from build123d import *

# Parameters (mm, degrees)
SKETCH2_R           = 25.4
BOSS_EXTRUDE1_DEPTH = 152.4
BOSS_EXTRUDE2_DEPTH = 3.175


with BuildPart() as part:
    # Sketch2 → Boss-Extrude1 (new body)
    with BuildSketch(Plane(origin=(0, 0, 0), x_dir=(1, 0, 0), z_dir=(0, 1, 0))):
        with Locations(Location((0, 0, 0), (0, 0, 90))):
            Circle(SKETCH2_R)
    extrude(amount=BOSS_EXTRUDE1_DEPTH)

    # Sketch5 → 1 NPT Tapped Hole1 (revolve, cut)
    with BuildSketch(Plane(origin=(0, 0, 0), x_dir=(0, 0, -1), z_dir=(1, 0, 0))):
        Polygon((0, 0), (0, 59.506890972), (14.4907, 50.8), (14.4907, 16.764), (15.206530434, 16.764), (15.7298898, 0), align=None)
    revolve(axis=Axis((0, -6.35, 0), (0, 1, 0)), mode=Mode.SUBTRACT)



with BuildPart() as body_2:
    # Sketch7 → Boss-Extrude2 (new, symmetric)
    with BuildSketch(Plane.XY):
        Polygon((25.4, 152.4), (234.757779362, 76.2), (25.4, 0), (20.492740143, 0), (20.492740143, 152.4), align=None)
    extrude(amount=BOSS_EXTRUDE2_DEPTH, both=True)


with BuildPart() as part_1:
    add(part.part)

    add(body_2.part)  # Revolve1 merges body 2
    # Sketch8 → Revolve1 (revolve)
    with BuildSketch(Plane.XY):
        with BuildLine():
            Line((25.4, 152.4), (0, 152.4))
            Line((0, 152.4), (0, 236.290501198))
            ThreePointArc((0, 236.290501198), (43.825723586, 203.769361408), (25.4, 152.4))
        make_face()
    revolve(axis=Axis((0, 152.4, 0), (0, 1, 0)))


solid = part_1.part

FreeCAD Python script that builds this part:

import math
import FreeCAD as App
import Part
import Sketcher
Q = App.Units.Quantity

doc = App.newDocument("Part")
body = doc.addObject("PartDesign::Body", "Body")

# Sketch on XZ plane
sketch1 = doc.addObject("Sketcher::SketchObject", "Sketch")
body.addObject(sketch1)
sketch1.AttachmentSupport = (doc.XZ_Plane, [""])
sketch1.MapMode = "FlatFace"
sketch1.addGeometry(Part.Circle(App.Vector(0, 0, 0), App.Vector(0, 0, 1), 25), False)
sketch1.addConstraint([
    Sketcher.Constraint("Coincident", 0, 3, -1, 1),
    Sketcher.Constraint("Diameter", 0, Q("2 in")),
])
pad1 = doc.addObject("PartDesign::Pad", "Pad")
body.addObject(pad1)
pad1.Profile = sketch1
pad1.Length = Q("6 in")
pad1.Reversed = True

# Sketch on YZ plane
sketch2 = doc.addObject("Sketcher::SketchObject", "Sketch001")
body.addObject(sketch2)
sketch2.AttachmentSupport = (doc.YZ_Plane, [""])
sketch2.MapMode = "FlatFace"
sketch2.addGeometry([
    Part.LineSegment(App.Vector(59.5, 0, 0), App.Vector(0, 0, 0)),  # 0
    Part.LineSegment(App.Vector(0, 0, 0), App.Vector(0, -15.7, 0)),  # 1
    Part.LineSegment(App.Vector(0, -15.7, 0), App.Vector(16.8, -15.2, 0)),  # 2
    Part.LineSegment(App.Vector(16.8, -15.2, 0), App.Vector(16.8, -14.5, 0)),  # 3
    Part.LineSegment(App.Vector(16.8, -14.5, 0), App.Vector(50.8, -14.5, 0)),  # 4
    Part.LineSegment(App.Vector(50.8, -14.5, 0), App.Vector(59.5, 0, 0)),  # 5
], False)
sketch2.addConstraint([
    Sketcher.Constraint("Coincident", 0, 2, 1, 1),
    Sketcher.Constraint("Coincident", 1, 2, 2, 1),
    Sketcher.Constraint("Coincident", 2, 2, 3, 1),
    Sketcher.Constraint("Coincident", 3, 2, 4, 1),
    Sketcher.Constraint("Coincident", 4, 2, 5, 1),
    Sketcher.Constraint("Coincident", 5, 2, 0, 1),
    Sketcher.Constraint("Horizontal", 0),
    Sketcher.Constraint("Vertical", 1),
    Sketcher.Constraint("Vertical", 3),
    Sketcher.Constraint("Horizontal", 4),
    Sketcher.Constraint("Coincident", 0, 2, -1, 1),
    Sketcher.Constraint("DistanceX", -1, 1, 4, 2, Q("2 in")),
    Sketcher.Constraint("Angle", 5, Q("59 deg")),
    Sketcher.Constraint("DistanceX", 4, 1, 4, 2, Q("1.34 in")),
    Sketcher.Constraint("DistanceY", 3, 2, -1, 1, Q("0.5705 in")),
    Sketcher.Constraint("DistanceY", 1, 2, 1, 1, 15.72989),
    Sketcher.Constraint("DistanceY", 3, 1, 3, 2, 0.71583),
])
groove = doc.addObject("PartDesign::Groove", "Groove")
body.addObject(groove)
groove.Profile = sketch2
groove.ReferenceAxis = (sketch2, ["H_Axis"])
groove.Angle = 360
body2 = doc.addObject("PartDesign::Body", "Body001")

# Sketch on XY plane
sketch3 = doc.addObject("Sketcher::SketchObject", "Sketch002")
body2.addObject(sketch3)
sketch3.AttachmentSupport = (doc.getObject("XY_Plane001"), [""])
sketch3.MapMode = "FlatFace"
sketch3.addGeometry([
    Part.LineSegment(App.Vector(234.8, 76.2, 0), App.Vector(25.4, 152.4, 0)),  # 0
    Part.LineSegment(App.Vector(25.4, 152.4, 0), App.Vector(20.5, 152.4, 0)),  # 1
    Part.LineSegment(App.Vector(20.5, 152.4, 0), App.Vector(20.5, 0, 0)),  # 2
    Part.LineSegment(App.Vector(20.5, 0, 0), App.Vector(25.4, 0, 0)),  # 3
    Part.LineSegment(App.Vector(25.4, 0, 0), App.Vector(234.8, 76.2, 0)),  # 4
], False)
sketch3.addConstraint([
    Sketcher.Constraint("Coincident", 0, 2, 1, 1),
    Sketcher.Constraint("Coincident", 1, 2, 2, 1),
    Sketcher.Constraint("Coincident", 2, 2, 3, 1),
    Sketcher.Constraint("Coincident", 3, 2, 4, 1),
    Sketcher.Constraint("Coincident", 4, 2, 0, 1),
    Sketcher.Constraint("Horizontal", 1),
    Sketcher.Constraint("Vertical", 2),
    Sketcher.Constraint("Horizontal", 3),
    Sketcher.Constraint("PointOnObject", 2, 2, -1),
    Sketcher.Constraint("Vertical", 0, 2, 3, 2),
    Sketcher.Constraint("Equal", 0, 4),
    Sketcher.Constraint("DistanceY", 2, 2, 2, 1, Q("6 in")),
    Sketcher.Constraint("DistanceX", -1, 1, 0, 2, Q("1 in")),
    Sketcher.Constraint("Angle", 0, Q("160 deg")),
    Sketcher.Constraint("DistanceX", 1, 2, 1, 1, 4.90726),
])
pad2 = doc.addObject("PartDesign::Pad", "Pad001")
body2.addObject(pad2)
pad2.Profile = sketch3
pad2.Length = Q("0.25 in")
pad2.Midplane = True
doc.recompute()

boolean = doc.addObject("PartDesign::Boolean", "Boolean")
body.addObject(boolean)
boolean.Type = "Fuse"
boolean.addObjects([body2])

# Sketch on XY plane
sketch4 = doc.addObject("Sketcher::SketchObject", "Sketch003")
body.addObject(sketch4)
sketch4.AttachmentSupport = (doc.XY_Plane, [""])
sketch4.MapMode = "FlatFace"
sketch4.addGeometry([
    Part.LineSegment(App.Vector(0, 152, 0), App.Vector(25, 152, 0)),
    Part.ArcOfCircle(Part.Circle(App.Vector(0, 190, 0), App.Vector(0, 0, 1), 46), math.radians(-56), math.radians(90)),
    Part.LineSegment(App.Vector(0, 236, 0), App.Vector(0, 152, 0)),
], False)
sketch4.addConstraint([
    Sketcher.Constraint("Coincident", 0, 2, 1, 1),
    Sketcher.Constraint("Coincident", 1, 2, 2, 1),
    Sketcher.Constraint("Coincident", 2, 2, 0, 1),
    Sketcher.Constraint("Horizontal", 0),
    Sketcher.Constraint("Vertical", 2),
    Sketcher.Constraint("PointOnObject", 1, 3, -2),
    Sketcher.Constraint("PointOnObject", 1, 2, -2),
    Sketcher.Constraint("DistanceX", 0, 1, 0, 2, Q("1 in")),
    Sketcher.Constraint("DistanceY", -1, 1, 0, 2, Q("6 in")),
    Sketcher.Constraint("DistanceY", -1, 1, 1, 3, Q("7.5 in")),
])
revolution = doc.addObject("PartDesign::Revolution", "Revolution")
body.addObject(revolution)
revolution.Profile = sketch4
revolution.ReferenceAxis = (sketch4, ["V_Axis"])
revolution.Angle = 360

doc.recompute()
